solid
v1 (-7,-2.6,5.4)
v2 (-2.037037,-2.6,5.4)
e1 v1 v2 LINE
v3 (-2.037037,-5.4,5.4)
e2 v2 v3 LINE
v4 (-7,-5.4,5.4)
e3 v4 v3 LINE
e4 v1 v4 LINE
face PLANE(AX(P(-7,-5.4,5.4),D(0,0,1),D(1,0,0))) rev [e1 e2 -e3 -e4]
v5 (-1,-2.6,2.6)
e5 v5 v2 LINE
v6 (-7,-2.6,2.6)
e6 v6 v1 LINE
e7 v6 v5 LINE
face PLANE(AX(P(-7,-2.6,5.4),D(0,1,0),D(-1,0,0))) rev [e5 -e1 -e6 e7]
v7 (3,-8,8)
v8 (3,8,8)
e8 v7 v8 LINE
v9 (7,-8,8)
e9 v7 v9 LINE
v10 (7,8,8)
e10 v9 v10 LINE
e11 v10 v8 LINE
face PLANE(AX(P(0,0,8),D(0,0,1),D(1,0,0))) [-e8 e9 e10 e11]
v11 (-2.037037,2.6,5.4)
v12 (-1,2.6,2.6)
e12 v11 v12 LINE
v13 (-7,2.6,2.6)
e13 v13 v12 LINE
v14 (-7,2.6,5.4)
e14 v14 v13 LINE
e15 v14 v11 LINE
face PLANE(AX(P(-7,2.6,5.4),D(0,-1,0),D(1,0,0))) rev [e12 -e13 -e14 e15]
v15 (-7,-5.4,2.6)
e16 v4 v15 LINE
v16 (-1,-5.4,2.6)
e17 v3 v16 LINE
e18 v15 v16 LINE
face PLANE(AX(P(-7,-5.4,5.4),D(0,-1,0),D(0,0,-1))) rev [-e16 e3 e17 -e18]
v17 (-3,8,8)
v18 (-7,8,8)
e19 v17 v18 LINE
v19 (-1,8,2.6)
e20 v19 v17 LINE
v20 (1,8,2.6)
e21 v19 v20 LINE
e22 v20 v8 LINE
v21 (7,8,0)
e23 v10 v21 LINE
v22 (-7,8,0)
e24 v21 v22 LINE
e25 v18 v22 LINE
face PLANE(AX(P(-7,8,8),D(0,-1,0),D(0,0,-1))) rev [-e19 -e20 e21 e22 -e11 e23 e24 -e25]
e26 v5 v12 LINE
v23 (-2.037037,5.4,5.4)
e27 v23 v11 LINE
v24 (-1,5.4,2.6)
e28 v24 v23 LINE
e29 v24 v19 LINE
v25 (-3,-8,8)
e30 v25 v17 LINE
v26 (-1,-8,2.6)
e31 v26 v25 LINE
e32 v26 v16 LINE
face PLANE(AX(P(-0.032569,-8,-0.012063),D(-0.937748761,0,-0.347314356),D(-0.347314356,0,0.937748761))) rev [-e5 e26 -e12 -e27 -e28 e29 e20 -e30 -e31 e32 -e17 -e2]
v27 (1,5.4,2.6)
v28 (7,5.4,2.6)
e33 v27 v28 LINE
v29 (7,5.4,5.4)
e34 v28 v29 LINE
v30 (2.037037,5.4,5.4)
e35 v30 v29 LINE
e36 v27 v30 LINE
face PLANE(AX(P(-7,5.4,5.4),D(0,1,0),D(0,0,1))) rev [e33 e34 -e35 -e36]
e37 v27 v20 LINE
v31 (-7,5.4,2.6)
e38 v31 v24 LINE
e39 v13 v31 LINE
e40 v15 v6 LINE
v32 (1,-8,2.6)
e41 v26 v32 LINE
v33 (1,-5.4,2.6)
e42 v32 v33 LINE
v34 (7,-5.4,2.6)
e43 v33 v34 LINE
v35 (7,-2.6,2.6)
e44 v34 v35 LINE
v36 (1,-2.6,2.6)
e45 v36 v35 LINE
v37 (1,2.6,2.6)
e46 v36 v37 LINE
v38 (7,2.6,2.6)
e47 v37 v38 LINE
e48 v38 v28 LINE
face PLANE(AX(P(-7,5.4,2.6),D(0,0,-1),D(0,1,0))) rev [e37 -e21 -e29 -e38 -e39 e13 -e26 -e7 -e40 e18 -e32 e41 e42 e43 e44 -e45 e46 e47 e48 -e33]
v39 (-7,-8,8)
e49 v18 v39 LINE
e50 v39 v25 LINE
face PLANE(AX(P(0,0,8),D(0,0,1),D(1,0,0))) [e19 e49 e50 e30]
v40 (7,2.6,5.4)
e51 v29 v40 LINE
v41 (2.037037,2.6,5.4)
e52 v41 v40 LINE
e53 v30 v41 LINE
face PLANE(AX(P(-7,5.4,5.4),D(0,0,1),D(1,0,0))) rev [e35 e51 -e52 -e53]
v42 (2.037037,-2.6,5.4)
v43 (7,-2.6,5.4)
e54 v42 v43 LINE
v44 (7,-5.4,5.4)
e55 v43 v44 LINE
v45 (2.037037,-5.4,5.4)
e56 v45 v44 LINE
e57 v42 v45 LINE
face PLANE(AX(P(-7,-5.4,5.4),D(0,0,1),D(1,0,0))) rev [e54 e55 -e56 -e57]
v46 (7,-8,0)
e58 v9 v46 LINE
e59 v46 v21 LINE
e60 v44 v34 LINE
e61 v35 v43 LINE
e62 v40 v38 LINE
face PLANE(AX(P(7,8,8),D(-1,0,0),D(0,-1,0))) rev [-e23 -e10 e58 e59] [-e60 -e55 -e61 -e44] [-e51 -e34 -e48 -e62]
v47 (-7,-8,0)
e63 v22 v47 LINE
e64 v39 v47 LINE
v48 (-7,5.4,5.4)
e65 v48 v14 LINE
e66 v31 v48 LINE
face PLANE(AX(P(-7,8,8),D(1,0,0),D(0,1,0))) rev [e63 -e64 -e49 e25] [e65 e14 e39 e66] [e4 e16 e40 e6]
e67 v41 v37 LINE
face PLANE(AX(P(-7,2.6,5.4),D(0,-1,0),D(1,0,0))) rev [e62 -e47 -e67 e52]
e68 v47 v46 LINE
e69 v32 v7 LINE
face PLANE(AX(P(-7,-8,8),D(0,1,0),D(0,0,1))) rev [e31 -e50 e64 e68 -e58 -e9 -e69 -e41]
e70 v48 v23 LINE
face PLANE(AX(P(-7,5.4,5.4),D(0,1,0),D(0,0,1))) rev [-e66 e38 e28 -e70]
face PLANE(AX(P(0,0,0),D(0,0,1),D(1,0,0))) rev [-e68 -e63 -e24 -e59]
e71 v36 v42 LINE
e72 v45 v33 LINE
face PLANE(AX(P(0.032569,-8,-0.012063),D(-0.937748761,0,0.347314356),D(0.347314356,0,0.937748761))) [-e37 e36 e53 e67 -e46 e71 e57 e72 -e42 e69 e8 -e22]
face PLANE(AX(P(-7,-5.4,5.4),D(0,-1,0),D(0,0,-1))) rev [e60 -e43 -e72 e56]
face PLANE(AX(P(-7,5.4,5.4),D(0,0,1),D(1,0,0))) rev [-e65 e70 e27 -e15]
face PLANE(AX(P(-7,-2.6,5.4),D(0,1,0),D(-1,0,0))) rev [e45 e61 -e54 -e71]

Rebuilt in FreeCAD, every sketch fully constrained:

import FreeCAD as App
import Part
import Sketcher

V = App.Vector
Q = App.Units.Quantity


def add_polygon(sketch, points):
    """Adds a closed chain of lines whose ends are joined by coincident constraints."""
    first, n = sketch.GeometryCount, len(points)
    for a, b in zip(points, points[1:] + points[:1]):
        sketch.addGeometry(Part.LineSegment(App.Vector(*a, 0), App.Vector(*b, 0)), False)
    for i in range(n):
        sketch.addConstraint(Sketcher.Constraint("Coincident", first + i, 2, first + (i + 1) % n, 1))

doc = App.newDocument("Part")
body = doc.addObject("PartDesign::Body", "Body")

# Sketch on XY plane
sketch1 = body.newObject("Sketcher::SketchObject", "Sketch")
sketch1.AttachmentSupport = (doc.getObject("XY_Plane"), [""])
sketch1.MapMode = "FlatFace"
add_polygon(sketch1, [(-7, 8), (-7, -8), (7, -8), (7, 8)])  # lines 0-3
sketch1.addConstraint([
    Sketcher.Constraint("Vertical", 0),
    Sketcher.Constraint("Horizontal", 1),
    Sketcher.Constraint("Vertical", 2),
    Sketcher.Constraint("Horizontal", 3),
    Sketcher.Constraint("Symmetric", 0, 2, 2, 2, -1, 1),
    Sketcher.Constraint("DistanceX", 1, 1, 1, 2, Q("14 mm")),
    Sketcher.Constraint("DistanceY", 0, 2, 0, 1, Q("16 mm")),
])
pad1 = body.newObject("PartDesign::Pad", "Pad")
pad1.Profile = sketch1
pad1.Length = 8

# Sketch on YZ plane
sketch2 = body.newObject("Sketcher::SketchObject", "Sketch001")
sketch2.AttachmentSupport = (doc.getObject("YZ_Plane"), [""])
sketch2.MapMode = "FlatFace"
sketch2.AttachmentOffset = App.Placement(V(0, 0, 7), App.Rotation())
add_polygon(sketch2, [(5.4, 5.4), (2.6, 5.4), (2.6, 2.6), (5.4, 2.6)])  # lines 0-3
add_polygon(sketch2, [(-2.6, 5.4), (-5.4, 5.4), (-5.4, 2.6), (-2.6, 2.6)])  # lines 4-7
sketch2.addConstraint([
    Sketcher.Constraint("Horizontal", 0),
    Sketcher.Constraint("Vertical", 1),
    Sketcher.Constraint("Horizontal", 2),
    Sketcher.Constraint("Vertical", 3),
    Sketcher.Constraint("Horizontal", 4),
    Sketcher.Constraint("Vertical", 5),
    Sketcher.Constraint("Horizontal", 6),
    Sketcher.Constraint("Vertical", 7),
    Sketcher.Constraint("Symmetric", 3, 2, 4, 2, -2),
    Sketcher.Constraint("Symmetric", 1, 2, 6, 2, -2),
    Sketcher.Constraint("Equal", 6, 1),
    Sketcher.Constraint("DistanceX", 0, 2, 0, 1, Q("2.8 mm")),
    Sketcher.Constraint("DistanceX", 4, 2, 0, 2, Q("8 mm")),
    Sketcher.Constraint("DistanceY", -1, 1, 0, 2, Q("5.4 mm")),
])
pocket1 = body.newObject("PartDesign::Pocket", "Pocket")
pocket1.Profile = sketch2
pocket1.Type = "ThroughAll"

# Sketch on XZ plane
sketch3 = body.newObject("Sketcher::SketchObject", "Sketch002")
sketch3.AttachmentSupport = (doc.getObject("XZ_Plane"), [""])
sketch3.MapMode = "FlatFace"
sketch3.AttachmentOffset = App.Placement(V(0, 0, -8), App.Rotation())
add_polygon(sketch3, [(1, 2.6), (-1, 2.6), (-3, 8), (3, 8)])  # lines 0-3
sketch3.addConstraint([
    Sketcher.Constraint("Horizontal", 0),
    Sketcher.Constraint("Horizontal", 2),
    Sketcher.Constraint("Equal", 1, 3),
    Sketcher.Constraint("DistanceX", 0, 2, 0, 1, Q("2 mm")),
    Sketcher.Constraint("DistanceX", 2, 1, 2, 2, Q("6 mm")),
    Sketcher.Constraint("DistanceX", 0, 2, -1, 1, Q("1 mm")),
    Sketcher.Constraint("DistanceY", -1, 1, 1, 2, Q("8 mm")),
    Sketcher.Constraint("DistanceY", -1, 1, 0, 2, Q("2.6 mm")),
])
pocket2 = body.newObject("PartDesign::Pocket", "Pocket001")
pocket2.Profile = sketch3
pocket2.Type = "ThroughAll"
pocket2.Reversed = True

doc.recompute()
